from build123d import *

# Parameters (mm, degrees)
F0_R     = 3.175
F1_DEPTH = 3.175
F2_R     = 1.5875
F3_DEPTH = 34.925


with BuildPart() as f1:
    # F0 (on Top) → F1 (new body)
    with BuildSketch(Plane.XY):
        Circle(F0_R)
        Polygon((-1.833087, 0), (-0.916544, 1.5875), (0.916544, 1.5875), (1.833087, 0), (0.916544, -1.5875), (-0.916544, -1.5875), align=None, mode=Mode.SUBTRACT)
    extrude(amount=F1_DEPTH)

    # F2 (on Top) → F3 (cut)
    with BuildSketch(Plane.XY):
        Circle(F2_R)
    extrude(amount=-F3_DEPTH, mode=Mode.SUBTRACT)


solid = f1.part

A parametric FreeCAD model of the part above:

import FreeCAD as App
import Part
import Sketcher

V = App.Vector
Q = App.Units.Quantity


def add_polygon(sketch, points):
    """Adds a closed chain of lines whose ends are joined by coincident constraints."""
    first, n = sketch.GeometryCount, len(points)
    for a, b in zip(points, points[1:] + points[:1]):
        sketch.addGeometry(Part.LineSegment(App.Vector(*a, 0), App.Vector(*b, 0)), False)
    for i in range(n):
        sketch.addConstraint(Sketcher.Constraint("Coincident", first + i, 2, first + (i + 1) % n, 1))

doc = App.newDocument("Part")
params = doc.addObject("Spreadsheet::Sheet", "Params")
for row, (alias, value) in enumerate([
    ("sketch1_diameter", "0.25 in"),
    ("pad1_length", "0.125 in"),
    ("sketch2_diameter", "0.125 in"),
    ("pocket1_length", "1.375 in"),
], start=1):
    params.set(f"A{row}", alias)
    params.set(f"B{row}", "=" + value)
    params.setAlias(f"B{row}", alias)

body = doc.addObject("PartDesign::Body", "Body")

# Sketch on XY plane
sketch1 = body.newObject("Sketcher::SketchObject", "Sketch")
sketch1.AttachmentSupport = (doc.getObject("XY_Plane"), [""])
sketch1.MapMode = "FlatFace"
sketch1.addGeometry(Part.Circle(V(0, 0, 0), V(0, 0, 1), 3.2), False)  # 0
add_polygon(sketch1, [(-0.9, -1.6), (-1.8, 0), (-0.9, 1.6), (0.9, 1.6), (1.8, 0), (0.9, -1.6)])  # lines 1-6
sketch1.addConstraint([
    Sketcher.Constraint("Horizontal", 3),
    Sketcher.Constraint("Horizontal", 6),
    Sketcher.Constraint("Coincident", 0, 3, -1, 1),
    Sketcher.Constraint("Symmetric", 1, 2, 4, 2, -1, 1),
    Sketcher.Constraint("Symmetric", 2, 2, 5, 2, -1, 1),
    Sketcher.Constraint("PointOnObject", 1, 2, -1),
    Sketcher.Constraint("Parallel", 1, 4),
    Sketcher.Constraint("Vertical", 3, 2, 5, 2),
    Sketcher.Constraint("Diameter", 0, Q("0.25 in")),
    Sketcher.Constraint("Angle", 1, Q("119.999985 deg")),
    Sketcher.Constraint("DistanceY", -1, 1, 2, 2, Q("0.0625 in")),
    Sketcher.Constraint("DistanceX", 3, 1, 3, 2, 1.833088),
])
sketch1.setExpression("Constraints[14]", "Params.sketch1_diameter")
pad1 = body.newObject("PartDesign::Pad", "Pad")
pad1.Profile = sketch1
pad1.setExpression("Length", "Params.pad1_length")

# Sketch on XY plane
sketch2 = body.newObject("Sketcher::SketchObject", "Sketch001")
sketch2.AttachmentSupport = (doc.getObject("XY_Plane"), [""])
sketch2.MapMode = "FlatFace"
sketch2.addGeometry(Part.Circle(V(0, 0, 0), V(0, 0, 1), 1.6), False)
sketch2.addConstraint([
    Sketcher.Constraint("Coincident", 0, 3, -1, 1),
    Sketcher.Constraint("Diameter", 0, Q("0.125 in")),
])
sketch2.setExpression("Constraints[1]", "Params.sketch2_diameter")
pocket1 = body.newObject("PartDesign::Pocket", "Pocket")
pocket1.Profile = sketch2
pocket1.setExpression("Length", "Params.pocket1_length")

doc.recompute()
